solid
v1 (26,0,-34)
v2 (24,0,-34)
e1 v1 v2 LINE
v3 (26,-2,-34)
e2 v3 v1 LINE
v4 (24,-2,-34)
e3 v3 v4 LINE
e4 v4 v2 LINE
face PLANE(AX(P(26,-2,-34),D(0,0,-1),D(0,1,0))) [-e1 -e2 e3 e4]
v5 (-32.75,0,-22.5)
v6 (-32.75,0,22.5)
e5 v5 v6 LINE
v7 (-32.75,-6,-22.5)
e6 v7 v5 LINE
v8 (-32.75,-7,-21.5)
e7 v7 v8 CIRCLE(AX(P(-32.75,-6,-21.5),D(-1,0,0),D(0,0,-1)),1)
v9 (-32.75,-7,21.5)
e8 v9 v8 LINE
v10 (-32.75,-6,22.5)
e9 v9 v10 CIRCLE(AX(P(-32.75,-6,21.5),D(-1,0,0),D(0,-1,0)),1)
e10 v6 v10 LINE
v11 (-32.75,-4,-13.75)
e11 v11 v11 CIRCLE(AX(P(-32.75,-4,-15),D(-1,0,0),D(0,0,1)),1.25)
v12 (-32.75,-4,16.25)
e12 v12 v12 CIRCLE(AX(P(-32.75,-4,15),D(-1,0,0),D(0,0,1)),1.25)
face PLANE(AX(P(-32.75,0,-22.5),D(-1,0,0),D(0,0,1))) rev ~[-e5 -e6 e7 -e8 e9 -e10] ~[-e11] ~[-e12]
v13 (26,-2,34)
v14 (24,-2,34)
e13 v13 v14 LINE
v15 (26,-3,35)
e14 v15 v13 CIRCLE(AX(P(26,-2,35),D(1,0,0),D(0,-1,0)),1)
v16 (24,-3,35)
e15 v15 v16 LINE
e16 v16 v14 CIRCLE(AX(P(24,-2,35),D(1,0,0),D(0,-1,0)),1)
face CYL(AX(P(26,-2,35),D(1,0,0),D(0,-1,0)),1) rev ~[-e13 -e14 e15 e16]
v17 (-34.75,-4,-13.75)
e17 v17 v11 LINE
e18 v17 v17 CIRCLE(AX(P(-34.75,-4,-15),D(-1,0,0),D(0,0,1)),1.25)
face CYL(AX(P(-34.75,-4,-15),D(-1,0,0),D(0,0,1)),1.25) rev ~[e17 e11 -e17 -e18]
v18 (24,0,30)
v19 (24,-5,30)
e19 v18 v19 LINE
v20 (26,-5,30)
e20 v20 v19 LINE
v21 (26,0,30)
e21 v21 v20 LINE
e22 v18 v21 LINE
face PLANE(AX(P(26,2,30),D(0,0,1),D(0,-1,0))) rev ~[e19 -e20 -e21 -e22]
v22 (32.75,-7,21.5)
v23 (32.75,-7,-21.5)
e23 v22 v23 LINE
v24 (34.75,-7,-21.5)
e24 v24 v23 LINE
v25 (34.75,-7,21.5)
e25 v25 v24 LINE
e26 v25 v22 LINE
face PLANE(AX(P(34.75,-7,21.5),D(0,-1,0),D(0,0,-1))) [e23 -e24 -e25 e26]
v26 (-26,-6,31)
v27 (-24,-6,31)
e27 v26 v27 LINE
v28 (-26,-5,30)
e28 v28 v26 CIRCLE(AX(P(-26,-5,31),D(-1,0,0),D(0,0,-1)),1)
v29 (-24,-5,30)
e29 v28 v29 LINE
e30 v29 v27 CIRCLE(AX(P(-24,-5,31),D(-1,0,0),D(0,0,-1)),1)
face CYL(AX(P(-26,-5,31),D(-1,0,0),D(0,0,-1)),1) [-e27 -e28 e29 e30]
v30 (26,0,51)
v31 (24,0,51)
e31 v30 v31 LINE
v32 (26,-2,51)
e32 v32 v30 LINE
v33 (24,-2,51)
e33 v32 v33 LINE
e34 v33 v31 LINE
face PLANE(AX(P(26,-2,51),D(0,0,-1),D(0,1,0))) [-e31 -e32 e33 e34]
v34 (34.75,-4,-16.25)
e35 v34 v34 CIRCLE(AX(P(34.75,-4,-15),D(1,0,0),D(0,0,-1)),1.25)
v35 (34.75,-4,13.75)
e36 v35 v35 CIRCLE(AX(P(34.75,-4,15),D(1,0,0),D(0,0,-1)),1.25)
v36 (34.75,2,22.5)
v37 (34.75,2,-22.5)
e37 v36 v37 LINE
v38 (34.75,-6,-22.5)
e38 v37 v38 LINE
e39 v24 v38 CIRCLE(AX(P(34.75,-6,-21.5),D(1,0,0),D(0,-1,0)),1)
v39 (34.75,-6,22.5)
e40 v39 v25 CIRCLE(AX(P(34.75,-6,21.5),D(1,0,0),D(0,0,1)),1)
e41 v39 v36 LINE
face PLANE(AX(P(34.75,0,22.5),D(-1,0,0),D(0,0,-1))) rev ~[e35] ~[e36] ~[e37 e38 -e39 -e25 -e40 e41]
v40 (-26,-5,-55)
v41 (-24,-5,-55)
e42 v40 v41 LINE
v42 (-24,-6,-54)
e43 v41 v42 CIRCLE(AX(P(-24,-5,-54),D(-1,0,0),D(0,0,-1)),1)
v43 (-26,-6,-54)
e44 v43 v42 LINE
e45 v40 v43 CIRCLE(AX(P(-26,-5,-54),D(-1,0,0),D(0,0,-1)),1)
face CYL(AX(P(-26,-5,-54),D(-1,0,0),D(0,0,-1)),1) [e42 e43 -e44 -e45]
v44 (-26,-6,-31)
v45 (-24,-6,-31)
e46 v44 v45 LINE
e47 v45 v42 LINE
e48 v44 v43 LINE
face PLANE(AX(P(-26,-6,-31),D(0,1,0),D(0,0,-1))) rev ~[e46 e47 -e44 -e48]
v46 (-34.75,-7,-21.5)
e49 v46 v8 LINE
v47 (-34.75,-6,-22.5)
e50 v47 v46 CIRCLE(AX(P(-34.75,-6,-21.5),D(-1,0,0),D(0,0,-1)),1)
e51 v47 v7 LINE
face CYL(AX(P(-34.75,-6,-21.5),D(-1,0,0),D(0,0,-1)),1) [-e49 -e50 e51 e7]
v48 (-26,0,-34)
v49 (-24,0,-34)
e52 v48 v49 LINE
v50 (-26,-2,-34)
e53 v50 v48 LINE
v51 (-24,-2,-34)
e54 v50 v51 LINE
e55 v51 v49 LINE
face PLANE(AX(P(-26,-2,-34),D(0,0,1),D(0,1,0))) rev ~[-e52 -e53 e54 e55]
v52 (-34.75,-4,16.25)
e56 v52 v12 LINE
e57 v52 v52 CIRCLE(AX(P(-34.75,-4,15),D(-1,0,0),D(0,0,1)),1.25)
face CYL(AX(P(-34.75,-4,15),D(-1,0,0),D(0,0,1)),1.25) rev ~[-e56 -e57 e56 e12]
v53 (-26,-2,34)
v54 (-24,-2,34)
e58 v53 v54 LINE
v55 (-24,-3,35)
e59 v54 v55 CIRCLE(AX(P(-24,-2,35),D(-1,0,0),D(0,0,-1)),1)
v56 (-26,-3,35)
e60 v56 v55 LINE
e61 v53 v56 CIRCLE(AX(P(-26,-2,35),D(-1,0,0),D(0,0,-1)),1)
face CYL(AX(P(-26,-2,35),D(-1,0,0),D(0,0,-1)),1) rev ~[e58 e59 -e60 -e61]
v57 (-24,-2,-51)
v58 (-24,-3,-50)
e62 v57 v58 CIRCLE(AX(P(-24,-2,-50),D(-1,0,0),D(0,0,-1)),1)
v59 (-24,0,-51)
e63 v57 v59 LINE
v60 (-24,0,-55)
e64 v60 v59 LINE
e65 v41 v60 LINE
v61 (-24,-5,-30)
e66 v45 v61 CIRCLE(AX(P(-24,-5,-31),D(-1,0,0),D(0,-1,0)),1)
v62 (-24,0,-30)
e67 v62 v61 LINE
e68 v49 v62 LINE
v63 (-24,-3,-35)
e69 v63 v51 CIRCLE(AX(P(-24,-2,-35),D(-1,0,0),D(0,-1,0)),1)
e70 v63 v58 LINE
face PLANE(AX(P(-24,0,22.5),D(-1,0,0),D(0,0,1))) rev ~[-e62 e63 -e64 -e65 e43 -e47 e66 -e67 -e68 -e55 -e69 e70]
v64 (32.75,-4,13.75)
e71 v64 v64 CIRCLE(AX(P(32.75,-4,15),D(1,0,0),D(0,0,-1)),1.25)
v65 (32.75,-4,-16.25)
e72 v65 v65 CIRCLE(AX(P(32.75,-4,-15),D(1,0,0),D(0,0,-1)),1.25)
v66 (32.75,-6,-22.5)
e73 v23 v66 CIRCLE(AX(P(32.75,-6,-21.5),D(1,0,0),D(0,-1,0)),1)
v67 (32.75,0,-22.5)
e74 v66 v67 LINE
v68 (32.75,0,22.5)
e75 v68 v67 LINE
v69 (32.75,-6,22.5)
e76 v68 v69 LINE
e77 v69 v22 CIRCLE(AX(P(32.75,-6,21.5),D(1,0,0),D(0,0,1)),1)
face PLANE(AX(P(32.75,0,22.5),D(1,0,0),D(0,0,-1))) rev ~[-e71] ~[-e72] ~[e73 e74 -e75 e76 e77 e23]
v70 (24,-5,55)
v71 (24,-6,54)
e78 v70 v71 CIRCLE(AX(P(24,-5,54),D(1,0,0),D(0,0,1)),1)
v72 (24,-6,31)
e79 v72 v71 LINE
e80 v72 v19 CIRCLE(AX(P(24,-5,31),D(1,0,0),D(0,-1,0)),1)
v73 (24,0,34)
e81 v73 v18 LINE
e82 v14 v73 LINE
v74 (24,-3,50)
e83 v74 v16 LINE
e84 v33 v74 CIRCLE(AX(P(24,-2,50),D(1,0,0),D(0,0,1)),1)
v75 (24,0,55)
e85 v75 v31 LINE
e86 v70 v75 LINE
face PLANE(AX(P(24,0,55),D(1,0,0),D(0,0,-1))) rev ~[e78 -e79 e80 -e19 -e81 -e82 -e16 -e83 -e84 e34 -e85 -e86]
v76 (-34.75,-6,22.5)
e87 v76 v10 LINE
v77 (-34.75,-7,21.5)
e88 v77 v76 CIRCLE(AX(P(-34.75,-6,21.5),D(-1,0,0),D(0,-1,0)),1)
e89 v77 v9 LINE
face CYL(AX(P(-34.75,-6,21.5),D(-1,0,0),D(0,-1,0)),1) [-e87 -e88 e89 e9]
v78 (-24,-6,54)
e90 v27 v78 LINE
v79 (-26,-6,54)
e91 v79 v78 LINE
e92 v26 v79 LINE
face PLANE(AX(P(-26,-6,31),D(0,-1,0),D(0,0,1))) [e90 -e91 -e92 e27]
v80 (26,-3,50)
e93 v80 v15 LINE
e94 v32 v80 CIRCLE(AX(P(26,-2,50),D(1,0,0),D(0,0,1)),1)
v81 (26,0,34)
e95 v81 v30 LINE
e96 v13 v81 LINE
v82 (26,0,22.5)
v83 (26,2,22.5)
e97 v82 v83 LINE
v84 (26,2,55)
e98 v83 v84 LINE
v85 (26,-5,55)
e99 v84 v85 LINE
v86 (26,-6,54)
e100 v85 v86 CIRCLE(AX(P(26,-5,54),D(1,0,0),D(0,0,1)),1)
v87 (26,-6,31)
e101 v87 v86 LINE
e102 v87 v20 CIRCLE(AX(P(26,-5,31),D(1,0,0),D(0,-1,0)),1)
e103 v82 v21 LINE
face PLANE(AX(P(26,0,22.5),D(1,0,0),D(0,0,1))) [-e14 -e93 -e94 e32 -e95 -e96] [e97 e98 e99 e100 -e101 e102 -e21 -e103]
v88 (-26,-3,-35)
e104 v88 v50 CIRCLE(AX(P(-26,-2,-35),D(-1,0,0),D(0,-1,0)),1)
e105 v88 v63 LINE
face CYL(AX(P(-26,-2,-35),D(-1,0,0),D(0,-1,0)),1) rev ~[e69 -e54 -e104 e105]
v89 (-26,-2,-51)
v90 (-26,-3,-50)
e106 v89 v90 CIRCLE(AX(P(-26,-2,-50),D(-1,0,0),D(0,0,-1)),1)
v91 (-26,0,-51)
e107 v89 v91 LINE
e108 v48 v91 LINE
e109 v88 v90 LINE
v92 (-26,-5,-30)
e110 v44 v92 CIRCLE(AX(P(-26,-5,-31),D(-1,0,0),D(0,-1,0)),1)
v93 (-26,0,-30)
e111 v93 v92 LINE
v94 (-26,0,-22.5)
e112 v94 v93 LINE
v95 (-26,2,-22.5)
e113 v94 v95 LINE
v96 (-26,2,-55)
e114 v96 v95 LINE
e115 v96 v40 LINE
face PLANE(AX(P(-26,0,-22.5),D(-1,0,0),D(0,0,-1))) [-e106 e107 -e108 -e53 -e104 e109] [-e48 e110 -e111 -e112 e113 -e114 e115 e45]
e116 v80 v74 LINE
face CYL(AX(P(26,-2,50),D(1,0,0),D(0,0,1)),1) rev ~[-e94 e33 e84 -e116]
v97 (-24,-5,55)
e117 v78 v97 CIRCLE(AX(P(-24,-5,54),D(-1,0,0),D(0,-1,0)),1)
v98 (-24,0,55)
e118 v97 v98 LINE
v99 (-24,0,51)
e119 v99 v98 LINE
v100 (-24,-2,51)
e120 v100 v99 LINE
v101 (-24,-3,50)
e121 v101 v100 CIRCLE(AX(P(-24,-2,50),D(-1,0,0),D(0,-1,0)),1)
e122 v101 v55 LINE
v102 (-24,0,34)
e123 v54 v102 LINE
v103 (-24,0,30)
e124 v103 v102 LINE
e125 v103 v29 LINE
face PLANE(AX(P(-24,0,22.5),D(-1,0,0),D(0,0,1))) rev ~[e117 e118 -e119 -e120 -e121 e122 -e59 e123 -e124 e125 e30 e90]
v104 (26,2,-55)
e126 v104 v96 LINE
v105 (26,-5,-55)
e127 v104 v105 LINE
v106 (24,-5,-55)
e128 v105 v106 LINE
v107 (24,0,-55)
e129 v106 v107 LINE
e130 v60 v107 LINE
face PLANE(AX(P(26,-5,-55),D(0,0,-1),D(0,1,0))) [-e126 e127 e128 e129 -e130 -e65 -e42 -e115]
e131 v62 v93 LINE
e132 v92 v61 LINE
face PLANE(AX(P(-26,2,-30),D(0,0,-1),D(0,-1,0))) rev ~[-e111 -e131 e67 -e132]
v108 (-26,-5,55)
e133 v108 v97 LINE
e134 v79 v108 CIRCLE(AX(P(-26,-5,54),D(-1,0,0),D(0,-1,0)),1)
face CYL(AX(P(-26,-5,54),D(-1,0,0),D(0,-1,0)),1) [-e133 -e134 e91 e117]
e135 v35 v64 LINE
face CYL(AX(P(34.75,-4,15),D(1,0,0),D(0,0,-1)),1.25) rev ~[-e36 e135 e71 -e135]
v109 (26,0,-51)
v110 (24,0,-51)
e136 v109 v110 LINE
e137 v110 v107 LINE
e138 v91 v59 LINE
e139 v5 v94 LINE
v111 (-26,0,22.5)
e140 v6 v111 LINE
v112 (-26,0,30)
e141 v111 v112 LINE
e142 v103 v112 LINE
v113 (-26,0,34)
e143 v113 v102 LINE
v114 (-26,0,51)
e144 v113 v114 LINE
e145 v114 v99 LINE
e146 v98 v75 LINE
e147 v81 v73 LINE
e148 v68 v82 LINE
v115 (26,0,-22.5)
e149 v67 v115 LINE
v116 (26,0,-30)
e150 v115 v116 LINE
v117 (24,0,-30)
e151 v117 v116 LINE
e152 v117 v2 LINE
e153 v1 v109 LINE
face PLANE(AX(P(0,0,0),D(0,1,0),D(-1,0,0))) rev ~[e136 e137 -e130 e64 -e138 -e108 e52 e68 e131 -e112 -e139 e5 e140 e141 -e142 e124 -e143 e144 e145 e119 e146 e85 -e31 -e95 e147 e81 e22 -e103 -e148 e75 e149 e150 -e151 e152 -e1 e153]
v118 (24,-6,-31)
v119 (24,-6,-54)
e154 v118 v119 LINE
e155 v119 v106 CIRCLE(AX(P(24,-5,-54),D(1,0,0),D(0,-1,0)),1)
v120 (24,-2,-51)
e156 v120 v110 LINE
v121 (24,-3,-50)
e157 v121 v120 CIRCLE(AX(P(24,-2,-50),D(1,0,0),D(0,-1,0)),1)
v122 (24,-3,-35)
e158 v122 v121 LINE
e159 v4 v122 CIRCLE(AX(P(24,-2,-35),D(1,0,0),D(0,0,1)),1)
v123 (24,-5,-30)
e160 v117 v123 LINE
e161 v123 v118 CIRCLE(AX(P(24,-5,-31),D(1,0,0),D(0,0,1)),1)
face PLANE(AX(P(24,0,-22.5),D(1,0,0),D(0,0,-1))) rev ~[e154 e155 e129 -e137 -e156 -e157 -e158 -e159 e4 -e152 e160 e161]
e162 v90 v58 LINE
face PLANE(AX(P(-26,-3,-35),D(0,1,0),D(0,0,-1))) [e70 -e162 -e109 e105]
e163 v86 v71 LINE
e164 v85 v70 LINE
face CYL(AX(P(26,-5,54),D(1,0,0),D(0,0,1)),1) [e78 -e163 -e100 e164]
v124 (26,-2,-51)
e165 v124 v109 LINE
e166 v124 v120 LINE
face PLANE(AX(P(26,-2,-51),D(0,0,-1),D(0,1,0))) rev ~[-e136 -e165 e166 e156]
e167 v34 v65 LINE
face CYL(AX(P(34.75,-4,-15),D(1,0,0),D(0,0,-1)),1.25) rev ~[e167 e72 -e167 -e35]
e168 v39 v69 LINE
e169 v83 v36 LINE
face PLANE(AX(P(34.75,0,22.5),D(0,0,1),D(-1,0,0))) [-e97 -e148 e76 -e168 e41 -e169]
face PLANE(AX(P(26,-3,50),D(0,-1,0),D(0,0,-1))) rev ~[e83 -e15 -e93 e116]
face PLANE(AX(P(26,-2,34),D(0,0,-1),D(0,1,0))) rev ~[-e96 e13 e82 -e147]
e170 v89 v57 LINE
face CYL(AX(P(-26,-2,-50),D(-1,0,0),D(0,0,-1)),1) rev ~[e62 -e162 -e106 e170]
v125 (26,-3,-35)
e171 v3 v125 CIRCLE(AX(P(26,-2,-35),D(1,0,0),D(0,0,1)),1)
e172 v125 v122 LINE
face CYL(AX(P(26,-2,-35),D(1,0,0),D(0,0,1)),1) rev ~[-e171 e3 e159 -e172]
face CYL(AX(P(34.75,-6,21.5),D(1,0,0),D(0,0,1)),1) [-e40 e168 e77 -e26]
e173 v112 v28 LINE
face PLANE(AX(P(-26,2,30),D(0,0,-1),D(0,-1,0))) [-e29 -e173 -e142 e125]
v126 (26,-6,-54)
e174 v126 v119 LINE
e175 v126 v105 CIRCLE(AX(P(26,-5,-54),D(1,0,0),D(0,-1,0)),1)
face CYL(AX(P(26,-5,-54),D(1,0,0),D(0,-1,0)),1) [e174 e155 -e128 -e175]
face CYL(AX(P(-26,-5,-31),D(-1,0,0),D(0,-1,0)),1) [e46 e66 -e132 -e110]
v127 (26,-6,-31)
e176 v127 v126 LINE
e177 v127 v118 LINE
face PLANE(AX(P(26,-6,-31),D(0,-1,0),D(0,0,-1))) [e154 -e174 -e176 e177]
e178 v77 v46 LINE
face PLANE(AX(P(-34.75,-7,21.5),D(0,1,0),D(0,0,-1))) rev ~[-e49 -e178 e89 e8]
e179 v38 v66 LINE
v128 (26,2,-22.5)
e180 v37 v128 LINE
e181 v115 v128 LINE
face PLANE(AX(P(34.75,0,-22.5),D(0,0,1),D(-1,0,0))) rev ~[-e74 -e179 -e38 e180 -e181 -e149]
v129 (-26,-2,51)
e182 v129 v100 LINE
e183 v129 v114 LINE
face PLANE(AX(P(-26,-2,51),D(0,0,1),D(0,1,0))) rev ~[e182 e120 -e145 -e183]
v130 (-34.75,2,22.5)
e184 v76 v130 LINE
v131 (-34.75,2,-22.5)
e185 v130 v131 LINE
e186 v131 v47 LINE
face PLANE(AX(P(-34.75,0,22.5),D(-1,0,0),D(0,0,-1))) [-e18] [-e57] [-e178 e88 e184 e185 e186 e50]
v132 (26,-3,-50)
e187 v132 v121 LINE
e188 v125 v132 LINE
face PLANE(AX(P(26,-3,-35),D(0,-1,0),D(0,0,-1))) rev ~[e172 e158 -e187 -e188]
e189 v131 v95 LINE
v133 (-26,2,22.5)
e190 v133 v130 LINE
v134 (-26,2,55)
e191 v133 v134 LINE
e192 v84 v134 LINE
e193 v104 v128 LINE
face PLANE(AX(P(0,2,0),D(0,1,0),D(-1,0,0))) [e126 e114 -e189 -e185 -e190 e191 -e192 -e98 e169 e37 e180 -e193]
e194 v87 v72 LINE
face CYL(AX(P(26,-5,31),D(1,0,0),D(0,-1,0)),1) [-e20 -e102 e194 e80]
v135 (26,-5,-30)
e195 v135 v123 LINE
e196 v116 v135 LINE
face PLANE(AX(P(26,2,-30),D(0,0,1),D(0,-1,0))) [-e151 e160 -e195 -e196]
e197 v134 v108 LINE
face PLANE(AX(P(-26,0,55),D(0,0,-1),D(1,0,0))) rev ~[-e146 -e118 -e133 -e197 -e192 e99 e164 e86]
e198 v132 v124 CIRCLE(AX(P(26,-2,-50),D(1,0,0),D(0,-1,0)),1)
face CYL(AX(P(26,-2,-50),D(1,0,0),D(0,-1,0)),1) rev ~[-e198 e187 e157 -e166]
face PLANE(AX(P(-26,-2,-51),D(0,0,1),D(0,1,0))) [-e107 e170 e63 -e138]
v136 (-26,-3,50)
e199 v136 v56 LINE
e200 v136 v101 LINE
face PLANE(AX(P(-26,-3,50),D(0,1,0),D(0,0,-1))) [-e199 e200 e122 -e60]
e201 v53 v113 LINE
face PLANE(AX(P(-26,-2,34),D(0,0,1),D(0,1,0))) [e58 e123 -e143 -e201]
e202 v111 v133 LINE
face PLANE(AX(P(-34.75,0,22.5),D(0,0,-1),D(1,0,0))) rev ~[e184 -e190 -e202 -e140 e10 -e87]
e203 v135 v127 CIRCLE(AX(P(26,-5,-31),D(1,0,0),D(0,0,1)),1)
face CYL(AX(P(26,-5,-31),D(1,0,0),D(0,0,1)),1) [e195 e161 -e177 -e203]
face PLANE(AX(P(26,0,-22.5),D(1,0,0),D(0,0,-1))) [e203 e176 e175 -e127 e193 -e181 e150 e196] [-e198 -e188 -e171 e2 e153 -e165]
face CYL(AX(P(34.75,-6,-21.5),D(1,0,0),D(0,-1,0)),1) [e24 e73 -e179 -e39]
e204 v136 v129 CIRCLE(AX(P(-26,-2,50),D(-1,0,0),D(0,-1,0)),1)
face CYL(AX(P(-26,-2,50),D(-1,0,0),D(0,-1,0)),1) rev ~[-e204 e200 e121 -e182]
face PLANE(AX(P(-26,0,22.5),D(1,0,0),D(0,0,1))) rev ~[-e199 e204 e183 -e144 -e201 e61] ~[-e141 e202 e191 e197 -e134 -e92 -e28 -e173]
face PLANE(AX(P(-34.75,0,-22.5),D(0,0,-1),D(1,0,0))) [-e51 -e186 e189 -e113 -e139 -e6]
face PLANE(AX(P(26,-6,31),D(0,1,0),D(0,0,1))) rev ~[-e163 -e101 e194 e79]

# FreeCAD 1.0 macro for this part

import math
import FreeCAD as App
import Part
import Sketcher
from FreeCAD import Vector
Q = App.Units.Quantity

doc = App.newDocument("Part")
body = doc.addObject("PartDesign::Body", "Body")

sketch1 = body.newObject("Sketcher::SketchObject", "Sketch")
sketch1.AttachmentSupport = (doc.getObject("XZ_Plane"), [""])
sketch1.MapMode = "FlatFace"
sketch1.addGeometry(Part.LineSegment(Vector(-35, -22, 0), Vector(-35, 22, 0)), False)
sketch1.addGeometry(Part.LineSegment(Vector(-35, 22, 0), Vector(-26, 22, 0)), False)
sketch1.addGeometry(Part.LineSegment(Vector(-26, 22, 0), Vector(-26, 55, 0)), False)
sketch1.addGeometry(Part.LineSegment(Vector(-26, 55, 0), Vector(26, 55, 0)), False)
sketch1.addGeometry(Part.LineSegment(Vector(26, 55, 0), Vector(26, 22, 0)), False)
sketch1.addGeometry(Part.LineSegment(Vector(26, 22, 0), Vector(35, 22, 0)), False)
sketch1.addGeometry(Part.LineSegment(Vector(35, 22, 0), Vector(35, -22, 0)), False)
sketch1.addGeometry(Part.LineSegment(Vector(35, -22, 0), Vector(26, -22, 0)), False)
sketch1.addGeometry(Part.LineSegment(Vector(26, -22, 0), Vector(26, -55, 0)), False)
sketch1.addGeometry(Part.LineSegment(Vector(26, -55, 0), Vector(-26, -55, 0)), False)
sketch1.addGeometry(Part.LineSegment(Vector(-26, -55, 0), Vector(-26, -22, 0)), False)
sketch1.addGeometry(Part.LineSegment(Vector(-26, -22, 0), Vector(-35, -22, 0)), False)
sketch1.addConstraint(Sketcher.Constraint("Coincident", 0, 2, 1, 1))
sketch1.addConstraint(Sketcher.Constraint("Coincident", 1, 2, 2, 1))
sketch1.addConstraint(Sketcher.Constraint("Coincident", 2, 2, 3, 1))
sketch1.addConstraint(Sketcher.Constraint("Coincident", 3, 2, 4, 1))
sketch1.addConstraint(Sketcher.Constraint("Coincident", 4, 2, 5, 1))
sketch1.addConstraint(Sketcher.Constraint("Coincident", 5, 2, 6, 1))
sketch1.addConstraint(Sketcher.Constraint("Coincident", 6, 2, 7, 1))
sketch1.addConstraint(Sketcher.Constraint("Coincident", 7, 2, 8, 1))
sketch1.addConstraint(Sketcher.Constraint("Coincident", 8, 2, 9, 1))
sketch1.addConstraint(Sketcher.Constraint("Coincident", 9, 2, 10, 1))
sketch1.addConstraint(Sketcher.Constraint("Coincident", 10, 2, 11, 1))
sketch1.addConstraint(Sketcher.Constraint("Coincident", 11, 2, 0, 1))
sketch1.addConstraint(Sketcher.Constraint("Vertical", 0))
sketch1.addConstraint(Sketcher.Constraint("Horizontal", 1))
sketch1.addConstraint(Sketcher.Constraint("Vertical", 2))
sketch1.addConstraint(Sketcher.Constraint("Horizontal", 3))
sketch1.addConstraint(Sketcher.Constraint("Vertical", 4))
sketch1.addConstraint(Sketcher.Constraint("Horizontal", 5))
sketch1.addConstraint(Sketcher.Constraint("Vertical", 6))
sketch1.addConstraint(Sketcher.Constraint("Horizontal", 7))
sketch1.addConstraint(Sketcher.Constraint("Vertical", 8))
sketch1.addConstraint(Sketcher.Constraint("Horizontal", 9))
sketch1.addConstraint(Sketcher.Constraint("Vertical", 10))
sketch1.addConstraint(Sketcher.Constraint("Horizontal", 11))
sketch1.addConstraint(Sketcher.Constraint("Symmetric", 0, 2, 6, 2, -1, 1))
sketch1.addConstraint(Sketcher.Constraint("Symmetric", 2, 2, 8, 2, -1, 1))
sketch1.addConstraint(Sketcher.Constraint("Symmetric", 4, 2, 10, 2, -1, 1))
sketch1.addConstraint(Sketcher.Constraint("Symmetric", 1, 2, 4, 2, -2))
sketch1.addConstraint(Sketcher.Constraint("DistanceY", 0, 1, 0, 2, Q("45 mm")))
sketch1.addConstraint(Sketcher.Constraint("DistanceY", 2, 1, 2, 2, Q("32.5 mm")))
sketch1.addConstraint(Sketcher.Constraint("DistanceX", 1, 1, 1, 2, Q("8.75 mm")))
sketch1.addConstraint(Sketcher.Constraint("DistanceX", 3, 1, 3, 2, Q("52 mm")))
pad1 = body.newObject("PartDesign::Pad", "Pad")
pad1.Profile = sketch1
pad1.Length = 2
pad1.Reversed = True

sketch2 = body.newObject("Sketcher::SketchObject", "Sketch001")
sketch2.AttachmentSupport = (doc.getObject("YZ_Plane"), [""])
sketch2.MapMode = "FlatFace"
sketch2.AttachmentOffset = App.Placement(Vector(0, 0, 34.75), App.Rotation())
sketch2.addGeometry(Part.LineSegment(Vector(-6, -22.5, 0), Vector(2, -22.5, 0)), False)
sketch2.addGeometry(Part.LineSegment(Vector(2, -22.5, 0), Vector(2, 22.5, 0)), False)
sketch2.addGeometry(Part.LineSegment(Vector(2, 22.5, 0), Vector(-6, 22.5, 0)), False)
sketch2.addGeometry(Part.ArcOfCircle(Part.Circle(Vector(-6, 21.5, 0), Vector(0, 0, 1), 1), math.radians(90), math.radians(180)), False)
sketch2.addGeometry(Part.LineSegment(Vector(-7, 21.5, 0), Vector(-7, -21.5, 0)), False)
sketch2.addGeometry(Part.ArcOfCircle(Part.Circle(Vector(-6, -21.5, 0), Vector(0, 0, 1), 1), math.radians(180), math.radians(270)), False)
sketch2.addGeometry(Part.Circle(Vector(-4, 15, 0), Vector(0, 0, 1), 1.2), False)
sketch2.addGeometry(Part.Circle(Vector(-4, -15, 0), Vector(0, 0, 1), 1.2), False)
sketch2.addConstraint(Sketcher.Constraint("Coincident", 0, 2, 1, 1))
sketch2.addConstraint(Sketcher.Constraint("Coincident", 1, 2, 2, 1))
sketch2.addConstraint(Sketcher.Constraint("Tangent", 2, 2, 3, 1))
sketch2.addConstraint(Sketcher.Constraint("Tangent", 3, 2, 4, 1))
sketch2.addConstraint(Sketcher.Constraint("Tangent", 4, 2, 5, 1))
sketch2.addConstraint(Sketcher.Constraint("Tangent", 5, 2, 0, 1))
sketch2.addConstraint(Sketcher.Constraint("Horizontal", 0))
sketch2.addConstraint(Sketcher.Constraint("Vertical", 1))
sketch2.addConstraint(Sketcher.Constraint("Horizontal", 2))
sketch2.addConstraint(Sketcher.Constraint("Vertical", 4))
sketch2.addConstraint(Sketcher.Constraint("Equal", 3, 5))
sketch2.addConstraint(Sketcher.Constraint("Equal", 6, 7))
sketch2.addConstraint(Sketcher.Constraint("Symmetric", 6, 3, 7, 3, -1))
sketch2.addConstraint(Sketcher.Constraint("Radius", 3, Q("1 mm")))
sketch2.addConstraint(Sketcher.Constraint("Diameter", 6, Q("2.5 mm")))
sketch2.addConstraint(Sketcher.Constraint("DistanceY", 1, 1, 1, 2, Q("45 mm")))
sketch2.addConstraint(Sketcher.Constraint("DistanceY", 7, 3, 6, 3, Q("30 mm")))
sketch2.addConstraint(Sketcher.Constraint("DistanceX", 3, 2, 6, 3, Q("3 mm")))
sketch2.addConstraint(Sketcher.Constraint("DistanceX", 3, 2, 1, 2, Q("9 mm")))
sketch2.addConstraint(Sketcher.Constraint("DistanceY", 0, 2, 7, 3, Q("7.5 mm")))
sketch2.addConstraint(Sketcher.Constraint("DistanceX", 3, 3, -1, 1, Q("6 mm")))
pad2 = body.newObject("PartDesign::Pad", "Pad001")
pad2.Profile = sketch2
pad2.Length = 2
pad2.Reversed = True

sketch3 = body.newObject("Sketcher::SketchObject", "Sketch002")
sketch3.AttachmentSupport = (doc.getObject("YZ_Plane"), [""])
sketch3.MapMode = "FlatFace"
sketch3.AttachmentOffset = App.Placement(Vector(0, 0, -34.75), App.Rotation())
sketch3.addGeometry(Part.LineSegment(Vector(2, 22.5, 0), Vector(2, -22.5, 0)), False)
sketch3.addGeometry(Part.LineSegment(Vector(2, -22.5, 0), Vector(-6, -22.5, 0)), False)
sketch3.addGeometry(Part.ArcOfCircle(Part.Circle(Vector(-6, -21.5, 0), Vector(0, 0, 1), 1), math.radians(180), math.radians(270)), False)
sketch3.addGeometry(Part.LineSegment(Vector(-7, -21.5, 0), Vector(-7, 21.5, 0)), False)
sketch3.addGeometry(Part.ArcOfCircle(Part.Circle(Vector(-6, 21.5, 0), Vector(0, 0, 1), 1), math.radians(90), math.radians(180)), False)
sketch3.addGeometry(Part.LineSegment(Vector(-6, 22.5, 0), Vector(2, 22.5, 0)), False)
sketch3.addGeometry(Part.Circle(Vector(-4, -15, 0), Vector(0, 0, 1), 1.2), False)
sketch3.addGeometry(Part.Circle(Vector(-4, 15, 0), Vector(0, 0, 1), 1.2), False)
sketch3.addConstraint(Sketcher.Constraint("Coincident", 0, 2, 1, 1))
sketch3.addConstraint(Sketcher.Constraint("Tangent", 1, 2, 2, 2))
sketch3.addConstraint(Sketcher.Constraint("Tangent", 2, 1, 3, 1))
sketch3.addConstraint(Sketcher.Constraint("Tangent", 3, 2, 4, 2))
sketch3.addConstraint(Sketcher.Constraint("Tangent", 4, 1, 5, 1))
sketch3.addConstraint(Sketcher.Constraint("Coincident", 5, 2, 0, 1))
sketch3.addConstraint(Sketcher.Constraint("Vertical", 0))
sketch3.addConstraint(Sketcher.Constraint("Horizontal", 1))
sketch3.addConstraint(Sketcher.Constraint("Vertical", 3))
sketch3.addConstraint(Sketcher.Constraint("Horizontal", 5))
sketch3.addConstraint(Sketcher.Constraint("Equal", 2, 4))
sketch3.addConstraint(Sketcher.Constraint("Equal", 6, 7))
sketch3.addConstraint(Sketcher.Constraint("Symmetric", 6, 3, 7, 3, -1))
sketch3.addConstraint(Sketcher.Constraint("Radius", 2, Q("1 mm")))
sketch3.addConstraint(Sketcher.Constraint("DistanceY", 0, 2, 0, 1, Q("45 mm")))
sketch3.addConstraint(Sketcher.Constraint("DistanceX", 2, 1, 0, 2, Q("9 mm")))
sketch3.addConstraint(Sketcher.Constraint("Diameter", 6, Q("2.5 mm")))
sketch3.addConstraint(Sketcher.Constraint("DistanceX", 2, 3, -1, 1, Q("6 mm")))
sketch3.addConstraint(Sketcher.Constraint("DistanceX", 6, 3, -1, 1, Q("4 mm")))
sketch3.addConstraint(Sketcher.Constraint("DistanceY", 6, 3, -1, 1, Q("15 mm")))
sketch3.addConstraint(Sketcher.Constraint("DistanceY", 2, 3, -1, 1, Q("21.5 mm")))
pad3 = body.newObject("PartDesign::Pad", "Pad002")
pad3.Profile = sketch3
pad3.Length = 2

sketch4 = body.newObject("Sketcher::SketchObject", "Sketch003")
sketch4.AttachmentSupport = (doc.getObject("YZ_Plane"), [""])
sketch4.MapMode = "FlatFace"
sketch4.AttachmentOffset = App.Placement(Vector(0, 0, 26), App.Rotation())
sketch4.addGeometry(Part.LineSegment(Vector(-5, -55, 0), Vector(2, -55, 0)), False)
sketch4.addGeometry(Part.LineSegment(Vector(2, -55, 0), Vector(2, -51, 0)), False)
sketch4.addGeometry(Part.LineSegment(Vector(2, -51, 0), Vector(-2, -51, 0)), False)
sketch4.addGeometry(Part.ArcOfCircle(Part.Circle(Vector(-2, -50, 0), Vector(0, 0, 1), 1), math.radians(180), math.radians(270)), False)
sketch4.addGeometry(Part.LineSegment(Vector(-3, -50, 0), Vector(-3, -35, 0)), False)
sketch4.addGeometry(Part.ArcOfCircle(Part.Circle(Vector(-2, -35, 0), Vector(0, 0, 1), 1), math.radians(90), math.radians(180)), False)
sketch4.addGeometry(Part.LineSegment(Vector(-2, -34, 0), Vector(2, -34, 0)), False)
sketch4.addGeometry(Part.LineSegment(Vector(2, -34, 0), Vector(2, -30, 0)), False)
sketch4.addGeometry(Part.LineSegment(Vector(2, -30, 0), Vector(-5, -30, 0)), False)
sketch4.addGeometry(Part.ArcOfCircle(Part.Circle(Vector(-5, -31, 0), Vector(0, 0, 1), 1), math.radians(90), math.radians(180)), False)
sketch4.addGeometry(Part.LineSegment(Vector(-6, -31, 0), Vector(-6, -54, 0)), False)
sketch4.addGeometry(Part.ArcOfCircle(Part.Circle(Vector(-5, -54, 0), Vector(0, 0, 1), 1), math.radians(180), math.radians(270)), False)
sketch4.addConstraint(Sketcher.Constraint("Coincident", 0, 2, 1, 1))
sketch4.addConstraint(Sketcher.Constraint("Coincident", 1, 2, 2, 1))
sketch4.addConstraint(Sketcher.Constraint("Tangent", 2, 2, 3, 2))
sketch4.addConstraint(Sketcher.Constraint("Tangent", 3, 1, 4, 1))
sketch4.addConstraint(Sketcher.Constraint("Tangent", 4, 2, 5, 2))
sketch4.addConstraint(Sketcher.Constraint("Tangent", 5, 1, 6, 1))
sketch4.addConstraint(Sketcher.Constraint("Coincident", 6, 2, 7, 1))
sketch4.addConstraint(Sketcher.Constraint("Coincident", 7, 2, 8, 1))
sketch4.addConstraint(Sketcher.Constraint("Tangent", 8, 2, 9, 1))
sketch4.addConstraint(Sketcher.Constraint("Tangent", 9, 2, 10, 1))
sketch4.addConstraint(Sketcher.Constraint("Tangent", 10, 2, 11, 1))
sketch4.addConstraint(Sketcher.Constraint("Tangent", 11, 2, 0, 1))
sketch4.addConstraint(Sketcher.Constraint("Horizontal", 0))
sketch4.addConstraint(Sketcher.Constraint("Vertical", 1))
sketch4.addConstraint(Sketcher.Constraint("Horizontal", 2))
sketch4.addConstraint(Sketcher.Constraint("Vertical", 4))
sketch4.addConstraint(Sketcher.Constraint("Horizontal", 6))
sketch4.addConstraint(Sketcher.Constraint("Vertical", 7))
sketch4.addConstraint(Sketcher.Constraint("Horizontal", 8))
sketch4.addConstraint(Sketcher.Constraint("Vertical", 10))
sketch4.addConstraint(Sketcher.Constraint("Equal", 3, 5))
sketch4.addConstraint(Sketcher.Constraint("Equal", 5, 9))
sketch4.addConstraint(Sketcher.Constraint("Equal", 9, 11))
sketch4.addConstraint(Sketcher.Constraint("Vertical", 1, 2, 6, 2))
sketch4.addConstraint(Sketcher.Constraint("Equal", 6, 1))
sketch4.addConstraint(Sketcher.Constraint("Equal", 1, 7))
sketch4.addConstraint(Sketcher.Constraint("Radius", 3, Q("1 mm")))
sketch4.addConstraint(Sketcher.Constraint("DistanceX", 2, 2, 2, 1, Q("4 mm")))
sketch4.addConstraint(Sketcher.Constraint("DistanceX", 3, 1, -1, 1, Q("3 mm")))
sketch4.addConstraint(Sketcher.Constraint("DistanceX", 9, 3, 5, 3, Q("3 mm")))
sketch4.addConstraint(Sketcher.Constraint("DistanceY", 4, 1, 4, 2, Q("15 mm")))
sketch4.addConstraint(Sketcher.Constraint("DistanceY", 3, 3, -1, 1, Q("50 mm")))
pad4 = body.newObject("PartDesign::Pad", "Pad003")
pad4.Profile = sketch4
pad4.Length = 2
pad4.Reversed = True

sketch5 = body.newObject("Sketcher::SketchObject", "Sketch004")
sketch5.AttachmentSupport = (doc.getObject("YZ_Plane"), [""])
sketch5.MapMode = "FlatFace"
sketch5.AttachmentOffset = App.Placement(Vector(0, 0, 26), App.Rotation())
sketch5.addGeometry(Part.LineSegment(Vector(2, 51, 0), Vector(2, 55, 0)), False)
sketch5.addGeometry(Part.LineSegment(Vector(2, 55, 0), Vector(-5, 55, 0)), False)
sketch5.addGeometry(Part.ArcOfCircle(Part.Circle(Vector(-5, 54, 0), Vector(0, 0, 1), 1), math.radians(90), math.radians(180)), False)
sketch5.addGeometry(Part.LineSegment(Vector(-6, 54, 0), Vector(-6, 31, 0)), False)
sketch5.addGeometry(Part.ArcOfCircle(Part.Circle(Vector(-5, 31, 0), Vector(0, 0, 1), 1), math.radians(180), math.radians(270)), False)
sketch5.addGeometry(Part.LineSegment(Vector(-5, 30, 0), Vector(2, 30, 0)), False)
sketch5.addGeometry(Part.LineSegment(Vector(2, 30, 0), Vector(2, 34, 0)), False)
sketch5.addGeometry(Part.LineSegment(Vector(2, 34, 0), Vector(-2, 34, 0)), False)
sketch5.addGeometry(Part.ArcOfCircle(Part.Circle(Vector(-2, 35, 0), Vector(0, 0, 1), 1), math.radians(180), math.radians(270)), False)
sketch5.addGeometry(Part.LineSegment(Vector(-3, 35, 0), Vector(-3, 50, 0)), False)
sketch5.addGeometry(Part.ArcOfCircle(Part.Circle(Vector(-2, 50, 0), Vector(0, 0, 1), 1), math.radians(90), math.radians(180)), False)
sketch5.addGeometry(Part.LineSegment(Vector(-2, 51, 0), Vector(2, 51, 0)), False)
sketch5.addConstraint(Sketcher.Constraint("Coincident", 0, 2, 1, 1))
sketch5.addConstraint(Sketcher.Constraint("Tangent", 1, 2, 2, 1))
sketch5.addConstraint(Sketcher.Constraint("Tangent", 2, 2, 3, 1))
sketch5.addConstraint(Sketcher.Constraint("Tangent", 3, 2, 4, 1))
sketch5.addConstraint(Sketcher.Constraint("Tangent", 4, 2, 5, 1))
sketch5.addConstraint(Sketcher.Constraint("Coincident", 5, 2, 6, 1))
sketch5.addConstraint(Sketcher.Constraint("Coincident", 6, 2, 7, 1))
sketch5.addConstraint(Sketcher.Constraint("Tangent", 7, 2, 8, 2))
sketch5.addConstraint(Sketcher.Constraint("Tangent", 8, 1, 9, 1))
sketch5.addConstraint(Sketcher.Constraint("Tangent", 9, 2, 10, 2))
sketch5.addConstraint(Sketcher.Constraint("Tangent", 10, 1, 11, 1))
sketch5.addConstraint(Sketcher.Constraint("Coincident", 11, 2, 0, 1))
sketch5.addConstraint(Sketcher.Constraint("Vertical", 0))
sketch5.addConstraint(Sketcher.Constraint("Horizontal", 1))
sketch5.addConstraint(Sketcher.Constraint("Vertical", 3))
sketch5.addConstraint(Sketcher.Constraint("Horizontal", 5))
sketch5.addConstraint(Sketcher.Constraint("Vertical", 6))
sketch5.addConstraint(Sketcher.Constraint("Horizontal", 7))
sketch5.addConstraint(Sketcher.Constraint("Vertical", 9))
sketch5.addConstraint(Sketcher.Constraint("Horizontal", 11))
sketch5.addConstraint(Sketcher.Constraint("Equal", 2, 4))
sketch5.addConstraint(Sketcher.Constraint("Equal", 4, 8))
sketch5.addConstraint(Sketcher.Constraint("Equal", 8, 10))
sketch5.addConstraint(Sketcher.Constraint("Vertical", 0, 2, 5, 2))
sketch5.addConstraint(Sketcher.Constraint("Equal", 11, 0))
sketch5.addConstraint(Sketcher.Constraint("Equal", 0, 6))
sketch5.addConstraint(Sketcher.Constraint("Radius", 2, Q("1 mm")))
sketch5.addConstraint(Sketcher.Constraint("DistanceX", 7, 2, 7, 1, Q("4 mm")))
sketch5.addConstraint(Sketcher.Constraint("DistanceX", 2, 3, -1, 1, Q("5 mm")))
sketch5.addConstraint(Sketcher.Constraint("DistanceX", 2, 2, 10, 3, Q("4 mm")))
sketch5.addConstraint(Sketcher.Constraint("DistanceY", 3, 2, 3, 1, Q("23 mm")))
sketch5.addConstraint(Sketcher.Constraint("DistanceY", -1, 1, 2, 3, Q("54 mm")))
pad5 = body.newObject("PartDesign::Pad", "Pad004")
pad5.Profile = sketch5
pad5.Length = 2
pad5.Reversed = True

sketch6 = body.newObject("Sketcher::SketchObject", "Sketch005")
sketch6.AttachmentSupport = (doc.getObject("YZ_Plane"), [""])
sketch6.MapMode = "FlatFace"
sketch6.AttachmentOffset = App.Placement(Vector(0, 0, -26), App.Rotation())
sketch6.addGeometry(Part.LineSegment(Vector(-5, 55, 0), Vector(2, 55, 0)), False)
sketch6.addGeometry(Part.LineSegment(Vector(2, 55, 0), Vector(2, 51, 0)), False)
sketch6.addGeometry(Part.LineSegment(Vector(2, 51, 0), Vector(-2, 51, 0)), False)
sketch6.addGeometry(Part.ArcOfCircle(Part.Circle(Vector(-2, 50, 0), Vector(0, 0, 1), 1), math.radians(90), math.radians(180)), False)
sketch6.addGeometry(Part.LineSegment(Vector(-3, 50, 0), Vector(-3, 35, 0)), False)
sketch6.addGeometry(Part.ArcOfCircle(Part.Circle(Vector(-2, 35, 0), Vector(0, 0, 1), 1), math.radians(180), math.radians(270)), False)
sketch6.addGeometry(Part.LineSegment(Vector(-2, 34, 0), Vector(2, 34, 0)), False)
sketch6.addGeometry(Part.LineSegment(Vector(2, 34, 0), Vector(2, 30, 0)), False)
sketch6.addGeometry(Part.LineSegment(Vector(2, 30, 0), Vector(-5, 30, 0)), False)
sketch6.addGeometry(Part.ArcOfCircle(Part.Circle(Vector(-5, 31, 0), Vector(0, 0, 1), 1), math.radians(180), math.radians(270)), False)
sketch6.addGeometry(Part.LineSegment(Vector(-6, 31, 0), Vector(-6, 54, 0)), False)
sketch6.addGeometry(Part.ArcOfCircle(Part.Circle(Vector(-5, 54, 0), Vector(0, 0, 1), 1), math.radians(90), math.radians(180)), False)
sketch6.addGeometry(Part.LineSegment(Vector(-5, -30, 0), Vector(2, -30, 0)), False)
sketch6.addGeometry(Part.LineSegment(Vector(2, -30, 0), Vector(2, -34, 0)), False)
sketch6.addGeometry(Part.LineSegment(Vector(2, -34, 0), Vector(-2, -34, 0)), False)
sketch6.addGeometry(Part.ArcOfCircle(Part.Circle(Vector(-2, -35, 0), Vector(0, 0, 1), 1), math.radians(90), math.radians(180)), False)
sketch6.addGeometry(Part.LineSegment(Vector(-3, -35, 0), Vector(-3, -50, 0)), False)
sketch6.addGeometry(Part.ArcOfCircle(Part.Circle(Vector(-2, -50, 0), Vector(0, 0, 1), 1), math.radians(180), math.radians(270)), False)
sketch6.addGeometry(Part.LineSegment(Vector(-2, -51, 0), Vector(2, -51, 0)), False)
sketch6.addGeometry(Part.LineSegment(Vector(2, -51, 0), Vector(2, -55, 0)), False)
sketch6.addGeometry(Part.LineSegment(Vector(2, -55, 0), Vector(-5, -55, 0)), False)
sketch6.addGeometry(Part.ArcOfCircle(Part.Circle(Vector(-5, -54, 0), Vector(0, 0, 1), 1), math.radians(180), math.radians(270)), False)
sketch6.addGeometry(Part.LineSegment(Vector(-6, -54, 0), Vector(-6, -31, 0)), False)
sketch6.addGeometry(Part.ArcOfCircle(Part.Circle(Vector(-5, -31, 0), Vector(0, 0, 1), 1), math.radians(90), math.radians(180)), False)
sketch6.addConstraint(Sketcher.Constraint("Coincident", 0, 2, 1, 1))
sketch6.addConstraint(Sketcher.Constraint("Coincident", 1, 2, 2, 1))
sketch6.addConstraint(Sketcher.Constraint("Tangent", 2, 2, 3, 1))
sketch6.addConstraint(Sketcher.Constraint("Tangent", 3, 2, 4, 1))
sketch6.addConstraint(Sketcher.Constraint("Tangent", 4, 2, 5, 1))
sketch6.addConstraint(Sketcher.Constraint("Tangent", 5, 2, 6, 1))
sketch6.addConstraint(Sketcher.Constraint("Coincident", 6, 2, 7, 1))
sketch6.addConstraint(Sketcher.Constraint("Coincident", 7, 2, 8, 1))
sketch6.addConstraint(Sketcher.Constraint("Tangent", 8, 2, 9, 2))
sketch6.addConstraint(Sketcher.Constraint("Tangent", 9, 1, 10, 1))
sketch6.addConstraint(Sketcher.Constraint("Tangent", 10, 2, 11, 2))
sketch6.addConstraint(Sketcher.Constraint("Tangent", 11, 1, 0, 1))
sketch6.addConstraint(Sketcher.Constraint("Coincident", 12, 2, 13, 1))
sketch6.addConstraint(Sketcher.Constraint("Coincident", 13, 2, 14, 1))
sketch6.addConstraint(Sketcher.Constraint("Tangent", 14, 2, 15, 1))
sketch6.addConstraint(Sketcher.Constraint("Tangent", 15, 2, 16, 1))
sketch6.addConstraint(Sketcher.Constraint("Tangent", 16, 2, 17, 1))
sketch6.addConstraint(Sketcher.Constraint("Tangent", 17, 2, 18, 1))
sketch6.addConstraint(Sketcher.Constraint("Coincident", 18, 2, 19, 1))
sketch6.addConstraint(Sketcher.Constraint("Coincident", 19, 2, 20, 1))
sketch6.addConstraint(Sketcher.Constraint("Tangent", 20, 2, 21, 2))
sketch6.addConstraint(Sketcher.Constraint("Tangent", 21, 1, 22, 1))
sketch6.addConstraint(Sketcher.Constraint("Tangent", 22, 2, 23, 2))
sketch6.addConstraint(Sketcher.Constraint("Tangent", 23, 1, 12, 1))
sketch6.addConstraint(Sketcher.Constraint("Horizontal", 0))
sketch6.addConstraint(Sketcher.Constraint("Vertical", 1))
sketch6.addConstraint(Sketcher.Constraint("Horizontal", 2))
sketch6.addConstraint(Sketcher.Constraint("Vertical", 4))
sketch6.addConstraint(Sketcher.Constraint("Horizontal", 6))
sketch6.addConstraint(Sketcher.Constraint("Vertical", 7))
sketch6.addConstraint(Sketcher.Constraint("Horizontal", 8))
sketch6.addConstraint(Sketcher.Constraint("Vertical", 10))
sketch6.addConstraint(Sketcher.Constraint("Horizontal", 12))
sketch6.addConstraint(Sketcher.Constraint("Vertical", 13))
sketch6.addConstraint(Sketcher.Constraint("Horizontal", 14))
sketch6.addConstraint(Sketcher.Constraint("Vertical", 16))
sketch6.addConstraint(Sketcher.Constraint("Horizontal", 18))
sketch6.addConstraint(Sketcher.Constraint("Vertical", 19))
sketch6.addConstraint(Sketcher.Constraint("Horizontal", 20))
sketch6.addConstraint(Sketcher.Constraint("Vertical", 22))
sketch6.addConstraint(Sketcher.Constraint("Equal", 3, 5))
sketch6.addConstraint(Sketcher.Constraint("Equal", 5, 9))
sketch6.addConstraint(Sketcher.Constraint("Equal", 9, 11))
sketch6.addConstraint(Sketcher.Constraint("Equal", 11, 15))
sketch6.addConstraint(Sketcher.Constraint("Equal", 15, 17))
sketch6.addConstraint(Sketcher.Constraint("Equal", 17, 21))
sketch6.addConstraint(Sketcher.Constraint("Equal", 21, 23))
sketch6.addConstraint(Sketcher.Constraint("Symmetric", 5, 2, 13, 2, -1, 1))
sketch6.addConstraint(Sketcher.Constraint("Symmetric", 1, 2, 17, 2, -1, 1))
sketch6.addConstraint(Sketcher.Constraint("Symmetric", 11, 3, 21, 3, -1))
sketch6.addConstraint(Sketcher.Constraint("Symmetric", 7, 2, 12, 2, -1))
sketch6.addConstraint(Sketcher.Constraint("Vertical", 5, 3, 15, 3))
sketch6.addConstraint(Sketcher.Constraint("Vertical", 13, 2, 18, 2))
sketch6.addConstraint(Sketcher.Constraint("Equal", 18, 1))
sketch6.addConstraint(Sketcher.Constraint("Equal", 1, 7))
sketch6.addConstraint(Sketcher.Constraint("Radius", 3, Q("1 mm")))
sketch6.addConstraint(Sketcher.Constraint("DistanceX", 2, 2, 2, 1, Q("4 mm")))
sketch6.addConstraint(Sketcher.Constraint("DistanceX", 9, 3, 5, 3, Q("3 mm")))
sketch6.addConstraint(Sketcher.Constraint("DistanceY", 4, 2, 4, 1, Q("15 mm")))
sketch6.addConstraint(Sketcher.Constraint("DistanceY", -1, 1, 3, 3, Q("50 mm")))
pad6 = body.newObject("PartDesign::Pad", "Pad005")
pad6.Profile = sketch6
pad6.Length = 2

doc.recompute()
